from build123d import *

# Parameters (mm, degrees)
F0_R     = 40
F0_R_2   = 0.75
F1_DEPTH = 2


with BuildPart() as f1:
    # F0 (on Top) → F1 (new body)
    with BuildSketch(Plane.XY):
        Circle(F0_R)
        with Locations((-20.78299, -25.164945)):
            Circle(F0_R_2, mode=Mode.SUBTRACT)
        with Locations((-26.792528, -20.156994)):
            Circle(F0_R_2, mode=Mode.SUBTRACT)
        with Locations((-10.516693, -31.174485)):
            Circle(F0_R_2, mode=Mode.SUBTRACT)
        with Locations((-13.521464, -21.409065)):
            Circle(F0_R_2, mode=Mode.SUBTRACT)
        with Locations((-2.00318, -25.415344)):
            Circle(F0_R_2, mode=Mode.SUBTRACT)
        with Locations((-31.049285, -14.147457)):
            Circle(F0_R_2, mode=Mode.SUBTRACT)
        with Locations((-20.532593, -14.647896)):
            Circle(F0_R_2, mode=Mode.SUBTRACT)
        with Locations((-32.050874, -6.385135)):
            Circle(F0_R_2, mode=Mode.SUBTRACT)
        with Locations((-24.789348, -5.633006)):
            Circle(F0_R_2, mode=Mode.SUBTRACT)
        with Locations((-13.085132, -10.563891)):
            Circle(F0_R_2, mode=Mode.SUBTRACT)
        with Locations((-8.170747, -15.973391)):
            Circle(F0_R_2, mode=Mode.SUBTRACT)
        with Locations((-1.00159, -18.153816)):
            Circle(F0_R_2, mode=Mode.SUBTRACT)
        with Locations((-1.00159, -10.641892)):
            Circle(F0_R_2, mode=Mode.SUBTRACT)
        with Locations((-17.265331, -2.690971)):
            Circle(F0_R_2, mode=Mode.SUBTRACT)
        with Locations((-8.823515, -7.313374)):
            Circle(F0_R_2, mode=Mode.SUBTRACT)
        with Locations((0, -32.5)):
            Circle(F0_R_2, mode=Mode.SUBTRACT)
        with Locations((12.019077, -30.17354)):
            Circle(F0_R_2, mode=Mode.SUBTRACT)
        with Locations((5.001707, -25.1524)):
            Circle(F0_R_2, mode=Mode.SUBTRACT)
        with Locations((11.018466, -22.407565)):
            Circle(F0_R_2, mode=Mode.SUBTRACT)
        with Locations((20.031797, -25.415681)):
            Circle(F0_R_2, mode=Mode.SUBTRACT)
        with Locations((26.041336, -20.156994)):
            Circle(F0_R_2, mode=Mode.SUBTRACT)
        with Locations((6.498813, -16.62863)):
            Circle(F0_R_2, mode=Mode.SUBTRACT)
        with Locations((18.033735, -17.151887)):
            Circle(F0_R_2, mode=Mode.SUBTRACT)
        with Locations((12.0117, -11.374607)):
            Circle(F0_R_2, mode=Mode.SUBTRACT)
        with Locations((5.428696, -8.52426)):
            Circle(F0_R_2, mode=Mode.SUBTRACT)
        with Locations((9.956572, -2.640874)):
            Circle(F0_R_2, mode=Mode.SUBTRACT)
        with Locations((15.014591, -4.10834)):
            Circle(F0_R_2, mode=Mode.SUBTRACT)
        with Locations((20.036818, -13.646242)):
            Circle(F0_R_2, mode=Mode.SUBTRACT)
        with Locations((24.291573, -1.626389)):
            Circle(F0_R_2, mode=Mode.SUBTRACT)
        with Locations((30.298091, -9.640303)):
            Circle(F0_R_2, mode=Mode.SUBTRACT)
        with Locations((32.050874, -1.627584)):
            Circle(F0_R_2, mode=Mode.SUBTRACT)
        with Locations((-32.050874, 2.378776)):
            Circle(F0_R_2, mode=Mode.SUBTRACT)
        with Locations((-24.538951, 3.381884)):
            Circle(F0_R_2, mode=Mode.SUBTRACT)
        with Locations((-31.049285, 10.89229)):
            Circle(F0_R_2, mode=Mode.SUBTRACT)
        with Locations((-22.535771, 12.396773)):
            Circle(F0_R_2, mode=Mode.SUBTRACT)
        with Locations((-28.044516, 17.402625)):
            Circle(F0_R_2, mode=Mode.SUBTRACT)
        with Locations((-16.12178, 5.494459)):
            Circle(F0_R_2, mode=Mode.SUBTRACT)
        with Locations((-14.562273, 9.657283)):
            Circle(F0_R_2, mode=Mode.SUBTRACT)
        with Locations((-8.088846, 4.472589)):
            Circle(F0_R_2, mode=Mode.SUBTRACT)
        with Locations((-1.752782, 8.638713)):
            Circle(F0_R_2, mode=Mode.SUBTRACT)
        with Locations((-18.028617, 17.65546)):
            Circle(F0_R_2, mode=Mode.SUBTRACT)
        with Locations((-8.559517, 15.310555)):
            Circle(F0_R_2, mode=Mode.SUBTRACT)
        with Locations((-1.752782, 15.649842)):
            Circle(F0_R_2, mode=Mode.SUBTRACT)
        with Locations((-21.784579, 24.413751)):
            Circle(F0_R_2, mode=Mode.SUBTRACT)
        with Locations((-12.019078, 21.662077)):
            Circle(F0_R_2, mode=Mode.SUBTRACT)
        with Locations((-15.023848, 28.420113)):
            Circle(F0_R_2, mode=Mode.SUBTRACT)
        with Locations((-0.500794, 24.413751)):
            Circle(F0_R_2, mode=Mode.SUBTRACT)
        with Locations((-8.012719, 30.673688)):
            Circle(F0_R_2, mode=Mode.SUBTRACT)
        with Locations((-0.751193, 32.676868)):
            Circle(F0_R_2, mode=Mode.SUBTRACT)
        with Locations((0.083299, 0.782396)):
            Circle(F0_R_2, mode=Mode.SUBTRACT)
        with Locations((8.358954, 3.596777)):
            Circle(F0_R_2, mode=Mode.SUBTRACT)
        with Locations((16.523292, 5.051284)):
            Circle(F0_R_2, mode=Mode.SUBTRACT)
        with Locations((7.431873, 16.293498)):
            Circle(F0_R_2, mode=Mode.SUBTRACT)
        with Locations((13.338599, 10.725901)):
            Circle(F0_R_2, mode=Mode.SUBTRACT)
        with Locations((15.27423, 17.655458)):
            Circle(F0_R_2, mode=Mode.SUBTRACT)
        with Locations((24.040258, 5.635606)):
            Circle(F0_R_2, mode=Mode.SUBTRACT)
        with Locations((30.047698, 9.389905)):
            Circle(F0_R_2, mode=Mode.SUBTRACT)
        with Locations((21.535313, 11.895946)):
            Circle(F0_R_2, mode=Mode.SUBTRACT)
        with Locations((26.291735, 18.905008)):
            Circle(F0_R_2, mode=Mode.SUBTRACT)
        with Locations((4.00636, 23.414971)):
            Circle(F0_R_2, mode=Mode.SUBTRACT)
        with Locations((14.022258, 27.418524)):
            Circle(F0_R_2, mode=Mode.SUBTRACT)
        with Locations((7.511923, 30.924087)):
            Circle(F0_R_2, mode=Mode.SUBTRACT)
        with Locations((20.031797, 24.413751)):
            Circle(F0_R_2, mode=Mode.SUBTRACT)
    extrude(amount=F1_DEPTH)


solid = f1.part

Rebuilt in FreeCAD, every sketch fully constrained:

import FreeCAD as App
import Part
import Sketcher
from FreeCAD import Vector

doc = App.newDocument("Part")
params = doc.addObject("Spreadsheet::Sheet", "Params")
for row, (alias, value) in enumerate([
    ("sketch1_diameter", "80 mm"),
    ("sketch1_diameter2", "1.5 mm"),
    ("pad1_length", "2 mm"),
], start=1):
    params.set(f"A{row}", alias)
    params.set(f"B{row}", "=" + value)
    params.setAlias(f"B{row}", alias)

body = doc.addObject("PartDesign::Body", "Body")

# Sketch on XY plane
sketch1 = body.newObject("Sketcher::SketchObject", "Sketch")
sketch1.AttachmentSupport = (doc.getObject("XY_Plane"), [""])
sketch1.MapMode = "FlatFace"
sketch1.addGeometry(Part.Circle(Vector(0, 0, 0), Vector(0, 0, 1), 40), False)
sketch1.addGeometry(Part.Circle(Vector(-20.8, -25.2, 0), Vector(0, 0, 1), 0.8), False)
sketch1.addGeometry(Part.Circle(Vector(-26.8, -20.2, 0), Vector(0, 0, 1), 0.8), False)
sketch1.addGeometry(Part.Circle(Vector(-10.5, -31.2, 0), Vector(0, 0, 1), 0.8), False)
sketch1.addGeometry(Part.Circle(Vector(-2, -25.4, 0), Vector(0, 0, 1), 0.8), False)
sketch1.addGeometry(Part.Circle(Vector(-13.5, -21.4, 0), Vector(0, 0, 1), 0.8), False)
sketch1.addGeometry(Part.Circle(Vector(-1, -18.2, 0), Vector(0, 0, 1), 0.8), False)
sketch1.addGeometry(Part.Circle(Vector(-31, -14.1, 0), Vector(0, 0, 1), 0.8), False)
sketch1.addGeometry(Part.Circle(Vector(-20.5, -14.6, 0), Vector(0, 0, 1), 0.8), False)
sketch1.addGeometry(Part.Circle(Vector(-32.1, -6.4, 0), Vector(0, 0, 1), 0.8), False)
sketch1.addGeometry(Part.Circle(Vector(-24.8, -5.6, 0), Vector(0, 0, 1), 0.8), False)
sketch1.addGeometry(Part.Circle(Vector(-17.3, -2.7, 0), Vector(0, 0, 1), 0.8), False)
sketch1.addGeometry(Part.Circle(Vector(-13.1, -10.6, 0), Vector(0, 0, 1), 0.8), False)
sketch1.addGeometry(Part.Circle(Vector(-8.2, -16, 0), Vector(0, 0, 1), 0.8), False)
sketch1.addGeometry(Part.Circle(Vector(-1, -10.6, 0), Vector(0, 0, 1), 0.8), False)
sketch1.addGeometry(Part.Circle(Vector(-8.8, -7.3, 0), Vector(0, 0, 1), 0.8), False)
sketch1.addGeometry(Part.Circle(Vector(0, -32.5, 0), Vector(0, 0, 1), 0.8), False)
sketch1.addGeometry(Part.Circle(Vector(5, -25.2, 0), Vector(0, 0, 1), 0.8), False)
sketch1.addGeometry(Part.Circle(Vector(12, -30.2, 0), Vector(0, 0, 1), 0.8), False)
sketch1.addGeometry(Part.Circle(Vector(6.5, -16.6, 0), Vector(0, 0, 1), 0.8), False)
sketch1.addGeometry(Part.Circle(Vector(11, -22.4, 0), Vector(0, 0, 1), 0.8), False)
sketch1.addGeometry(Part.Circle(Vector(20, -25.4, 0), Vector(0, 0, 1), 0.8), False)
sketch1.addGeometry(Part.Circle(Vector(18, -17.2, 0), Vector(0, 0, 1), 0.8), False)
sketch1.addGeometry(Part.Circle(Vector(26, -20.2, 0), Vector(0, 0, 1), 0.8), False)
sketch1.addGeometry(Part.Circle(Vector(5.4, -8.5, 0), Vector(0, 0, 1), 0.8), False)
sketch1.addGeometry(Part.Circle(Vector(12, -11.4, 0), Vector(0, 0, 1), 0.8), False)
sketch1.addGeometry(Part.Circle(Vector(15, -4.1, 0), Vector(0, 0, 1), 0.8), False)
sketch1.addGeometry(Part.Circle(Vector(10, -2.6, 0), Vector(0, 0, 1), 0.8), False)
sketch1.addGeometry(Part.Circle(Vector(20, -13.6, 0), Vector(0, 0, 1), 0.8), False)
sketch1.addGeometry(Part.Circle(Vector(30.3, -9.6, 0), Vector(0, 0, 1), 0.8), False)
sketch1.addGeometry(Part.Circle(Vector(24.3, -1.6, 0), Vector(0, 0, 1), 0.8), False)
sketch1.addGeometry(Part.Circle(Vector(32.1, -1.6, 0), Vector(0, 0, 1), 0.8), False)
sketch1.addGeometry(Part.Circle(Vector(-32.1, 2.4, 0), Vector(0, 0, 1), 0.8), False)
sketch1.addGeometry(Part.Circle(Vector(-24.5, 3.4, 0), Vector(0, 0, 1), 0.8), False)
sketch1.addGeometry(Part.Circle(Vector(-31, 10.9, 0), Vector(0, 0, 1), 0.8), False)
sketch1.addGeometry(Part.Circle(Vector(-22.5, 12.4, 0), Vector(0, 0, 1), 0.8), False)
sketch1.addGeometry(Part.Circle(Vector(-16.1, 5.5, 0), Vector(0, 0, 1), 0.8), False)
sketch1.addGeometry(Part.Circle(Vector(-8.1, 4.5, 0), Vector(0, 0, 1), 0.8), False)
sketch1.addGeometry(Part.Circle(Vector(-14.6, 9.7, 0), Vector(0, 0, 1), 0.8), False)
sketch1.addGeometry(Part.Circle(Vector(-8.6, 15.3, 0), Vector(0, 0, 1), 0.8), False)
sketch1.addGeometry(Part.Circle(Vector(-1.8, 8.6, 0), Vector(0, 0, 1), 0.8), False)
sketch1.addGeometry(Part.Circle(Vector(-1.8, 15.6, 0), Vector(0, 0, 1), 0.8), False)
sketch1.addGeometry(Part.Circle(Vector(-28, 17.4, 0), Vector(0, 0, 1), 0.8), False)
sketch1.addGeometry(Part.Circle(Vector(-18, 17.7, 0), Vector(0, 0, 1), 0.8), False)
sketch1.addGeometry(Part.Circle(Vector(-21.8, 24.4, 0), Vector(0, 0, 1), 0.8), False)
sketch1.addGeometry(Part.Circle(Vector(-12, 21.7, 0), Vector(0, 0, 1), 0.8), False)
sketch1.addGeometry(Part.Circle(Vector(-0.5, 24.4, 0), Vector(0, 0, 1), 0.8), False)
sketch1.addGeometry(Part.Circle(Vector(-15, 28.4, 0), Vector(0, 0, 1), 0.8), False)
sketch1.addGeometry(Part.Circle(Vector(-8, 30.7, 0), Vector(0, 0, 1), 0.8), False)
sketch1.addGeometry(Part.Circle(Vector(-0.8, 32.7, 0), Vector(0, 0, 1), 0.8), False)
sketch1.addGeometry(Part.Circle(Vector(0.1, 0.8, 0), Vector(0, 0, 1), 0.8), False)
sketch1.addGeometry(Part.Circle(Vector(8.4, 3.6, 0), Vector(0, 0, 1), 0.8), False)
sketch1.addGeometry(Part.Circle(Vector(7.4, 16.3, 0), Vector(0, 0, 1), 0.8), False)
sketch1.addGeometry(Part.Circle(Vector(13.3, 10.7, 0), Vector(0, 0, 1), 0.8), False)
sketch1.addGeometry(Part.Circle(Vector(16.5, 5.1, 0), Vector(0, 0, 1), 0.8), False)
sketch1.addGeometry(Part.Circle(Vector(24, 5.6, 0), Vector(0, 0, 1), 0.8), False)
sketch1.addGeometry(Part.Circle(Vector(21.5, 11.9, 0), Vector(0, 0, 1), 0.8), False)
sketch1.addGeometry(Part.Circle(Vector(30, 9.4, 0), Vector(0, 0, 1), 0.8), False)
sketch1.addGeometry(Part.Circle(Vector(4, 23.4, 0), Vector(0, 0, 1), 0.8), False)
sketch1.addGeometry(Part.Circle(Vector(15.3, 17.7, 0), Vector(0, 0, 1), 0.8), False)
sketch1.addGeometry(Part.Circle(Vector(7.5, 30.9, 0), Vector(0, 0, 1), 0.8), False)
sketch1.addGeometry(Part.Circle(Vector(14, 27.4, 0), Vector(0, 0, 1), 0.8), False)
sketch1.addGeometry(Part.Circle(Vector(20, 24.4, 0), Vector(0, 0, 1), 0.8), False)
sketch1.addGeometry(Part.Circle(Vector(26.3, 18.9, 0), Vector(0, 0, 1), 0.8), False)
sketch1.addConstraint(Sketcher.Constraint("Coincident", 0, 3, -1, 1))
sketch1.addConstraint(Sketcher.Constraint("Equal", 1, 2))
sketch1.addConstraint(Sketcher.Constraint("Equal", 2, 3))
sketch1.addConstraint(Sketcher.Constraint("Equal", 3, 4))
sketch1.addConstraint(Sketcher.Constraint("Equal", 4, 5))
sketch1.addConstraint(Sketcher.Constraint("Equal", 5, 6))
sketch1.addConstraint(Sketcher.Constraint("Equal", 6, 7))
sketch1.addConstraint(Sketcher.Constraint("Equal", 7, 8))
sketch1.addConstraint(Sketcher.Constraint("Equal", 8, 9))
sketch1.addConstraint(Sketcher.Constraint("Equal", 9, 10))
sketch1.addConstraint(Sketcher.Constraint("Equal", 10, 11))
sketch1.addConstraint(Sketcher.Constraint("Equal", 11, 12))
sketch1.addConstraint(Sketcher.Constraint("Equal", 12, 13))
sketch1.addConstraint(Sketcher.Constraint("Equal", 13, 14))
sketch1.addConstraint(Sketcher.Constraint("Equal", 14, 15))
sketch1.addConstraint(Sketcher.Constraint("Equal", 15, 16))
sketch1.addConstraint(Sketcher.Constraint("Equal", 16, 17))
sketch1.addConstraint(Sketcher.Constraint("Equal", 17, 18))
sketch1.addConstraint(Sketcher.Constraint("Equal", 18, 19))
sketch1.addConstraint(Sketcher.Constraint("Equal", 19, 20))
sketch1.addConstraint(Sketcher.Constraint("Equal", 20, 21))
sketch1.addConstraint(Sketcher.Constraint("Equal", 21, 22))
sketch1.addConstraint(Sketcher.Constraint("Equal", 22, 23))
sketch1.addConstraint(Sketcher.Constraint("Equal", 23, 24))
sketch1.addConstraint(Sketcher.Constraint("Equal", 24, 25))
sketch1.addConstraint(Sketcher.Constraint("Equal", 25, 26))
sketch1.addConstraint(Sketcher.Constraint("Equal", 26, 27))
sketch1.addConstraint(Sketcher.Constraint("Equal", 27, 28))
sketch1.addConstraint(Sketcher.Constraint("Equal", 28, 29))
sketch1.addConstraint(Sketcher.Constraint("Equal", 29, 30))
sketch1.addConstraint(Sketcher.Constraint("Equal", 30, 31))
sketch1.addConstraint(Sketcher.Constraint("Equal", 31, 32))
sketch1.addConstraint(Sketcher.Constraint("Equal", 32, 33))
sketch1.addConstraint(Sketcher.Constraint("Equal", 33, 34))
sketch1.addConstraint(Sketcher.Constraint("Equal", 34, 35))
sketch1.addConstraint(Sketcher.Constraint("Equal", 35, 36))
sketch1.addConstraint(Sketcher.Constraint("Equal", 36, 37))
sketch1.addConstraint(Sketcher.Constraint("Equal", 37, 38))
sketch1.addConstraint(Sketcher.Constraint("Equal", 38, 39))
sketch1.addConstraint(Sketcher.Constraint("Equal", 39, 40))
sketch1.addConstraint(Sketcher.Constraint("Equal", 40, 41))
sketch1.addConstraint(Sketcher.Constraint("Equal", 41, 42))
sketch1.addConstraint(Sketcher.Constraint("Equal", 42, 43))
sketch1.addConstraint(Sketcher.Constraint("Equal", 43, 44))
sketch1.addConstraint(Sketcher.Constraint("Equal", 44, 45))
sketch1.addConstraint(Sketcher.Constraint("Equal", 45, 46))
sketch1.addConstraint(Sketcher.Constraint("Equal", 46, 47))
sketch1.addConstraint(Sketcher.Constraint("Equal", 47, 48))
sketch1.addConstraint(Sketcher.Constraint("Equal", 48, 49))
sketch1.addConstraint(Sketcher.Constraint("Equal", 49, 50))
sketch1.addConstraint(Sketcher.Constraint("Equal", 50, 51))
sketch1.addConstraint(Sketcher.Constraint("Equal", 51, 52))
sketch1.addConstraint(Sketcher.Constraint("Equal", 52, 53))
sketch1.addConstraint(Sketcher.Constraint("Equal", 53, 54))
sketch1.addConstraint(Sketcher.Constraint("Equal", 54, 55))
sketch1.addConstraint(Sketcher.Constraint("Equal", 55, 56))
sketch1.addConstraint(Sketcher.Constraint("Equal", 56, 57))
sketch1.addConstraint(Sketcher.Constraint("Equal", 57, 58))
sketch1.addConstraint(Sketcher.Constraint("Equal", 58, 59))
sketch1.addConstraint(Sketcher.Constraint("Equal", 59, 60))
sketch1.addConstraint(Sketcher.Constraint("Equal", 60, 61))
sketch1.addConstraint(Sketcher.Constraint("Equal", 61, 62))
sketch1.addConstraint(Sketcher.Constraint("Equal", 62, 63))
sketch1.addConstraint(Sketcher.Constraint("PointOnObject", 16, 3, -2))
sketch1.addConstraint(Sketcher.Constraint("Horizontal", 2, 3, 23, 3))
sketch1.addConstraint(Sketcher.Constraint("Horizontal", 44, 3, 46, 3))
sketch1.addConstraint(Sketcher.Constraint("Horizontal", 46, 3, 62, 3))
sketch1.addConstraint(Sketcher.Constraint("Vertical", 6, 3, 14, 3))
sketch1.addConstraint(Sketcher.Constraint("Vertical", 9, 3, 32, 3))
sketch1.addConstraint(Sketcher.Constraint("Vertical", 7, 3, 34, 3))
sketch1.addConstraint(Sketcher.Constraint("Vertical", 40, 3, 41, 3))
sketch1.addConstraint(Sketcher.Constraint("Vertical", 21, 3, 62, 3))
sketch1.addConstraint(Sketcher.Constraint("Diameter", 0, 80.0))
sketch1.addConstraint(Sketcher.Constraint("Diameter", 1, 1.5))
sketch1.addConstraint(Sketcher.Constraint("DistanceY", 16, 3, -1, 1, 32.5))
sketch1.addConstraint(Sketcher.Constraint("DistanceY", 17, 3, -1, 1, 25.1524))
sketch1.addConstraint(Sketcher.Constraint("DistanceX", -1, 1, 25, 3, 12.0117))
sketch1.addConstraint(Sketcher.Constraint("DistanceX", -1, 1, 50, 3, 0.083299))
sketch1.addConstraint(Sketcher.Constraint("DistanceX", -1, 1, 53, 3, 13.338599))
sketch1.addConstraint(Sketcher.Constraint("DistanceY", -1, 1, 53, 3, 10.725901))
sketch1.addConstraint(Sketcher.Constraint("DistanceX", -1, 1, 57, 3, 30.047698))
sketch1.addConstraint(Sketcher.Constraint("DistanceX", 1, 3, -1, 1, 20.78299))
sketch1.addConstraint(Sketcher.Constraint("DistanceX", 2, 3, -1, 1, 26.792528))
sketch1.addConstraint(Sketcher.Constraint("DistanceX", 4, 3, -1, 1, 2.00318))
sketch1.addConstraint(Sketcher.Constraint("DistanceX", 6, 3, -1, 1, 1.00159))
sketch1.addConstraint(Sketcher.Constraint("DistanceX", 10, 3, -1, 1, 24.789348))
sketch1.addConstraint(Sketcher.Constraint("DistanceX", 11, 3, -1, 1, 17.265331))
sketch1.addConstraint(Sketcher.Constraint("DistanceY", 11, 3, -1, 1, 2.690971))
sketch1.addConstraint(Sketcher.Constraint("DistanceY", 12, 3, -1, 1, 10.563891))
sketch1.addConstraint(Sketcher.Constraint("DistanceY", 13, 3, -1, 1, 15.973391))
sketch1.addConstraint(Sketcher.Constraint("DistanceY", 18, 3, -1, 1, 30.17354))
sketch1.addConstraint(Sketcher.Constraint("DistanceY", 19, 3, -1, 1, 16.62863))
sketch1.addConstraint(Sketcher.Constraint("DistanceY", 21, 3, -1, 1, 25.415681))
sketch1.addConstraint(Sketcher.Constraint("DistanceY", 24, 3, -1, 1, 8.52426))
sketch1.addConstraint(Sketcher.Constraint("DistanceX", -1, 1, 26, 3, 15.014591))
sketch1.addConstraint(Sketcher.Constraint("DistanceY", 26, 3, -1, 1, 4.10834))
sketch1.addConstraint(Sketcher.Constraint("DistanceX", -1, 1, 28, 3, 20.036818))
sketch1.addConstraint(Sketcher.Constraint("DistanceX", -1, 1, 29, 3, 30.298091))
sketch1.addConstraint(Sketcher.Constraint("DistanceY", 30, 3, -1, 1, 1.626389))
sketch1.addConstraint(Sketcher.Constraint("DistanceX", 33, 3, -1, 1, 24.538951))
sketch1.addConstraint(Sketcher.Constraint("DistanceY", -1, 1, 34, 3, 10.89229))
sketch1.addConstraint(Sketcher.Constraint("DistanceX", 35, 3, -1, 1, 22.535771))
sketch1.addConstraint(Sketcher.Constraint("DistanceX", 36, 3, -1, 1, 16.12178))
sketch1.addConstraint(Sketcher.Constraint("DistanceY", -1, 1, 36, 3, 5.494459))
sketch1.addConstraint(Sketcher.Constraint("DistanceY", -1, 1, 37, 3, 4.472589))
sketch1.addConstraint(Sketcher.Constraint("DistanceY", -1, 1, 43, 3, 17.65546))
sketch1.addConstraint(Sketcher.Constraint("DistanceX", 44, 3, -1, 1, 21.784579))
sketch1.addConstraint(Sketcher.Constraint("DistanceY", -1, 1, 44, 3, 24.413751))
sketch1.addConstraint(Sketcher.Constraint("DistanceX", 48, 3, -1, 1, 8.012719))
sketch1.addConstraint(Sketcher.Constraint("DistanceX", -1, 1, 55, 3, 24.040258))
sketch1.addConstraint(Sketcher.Constraint("DistanceX", -1, 1, 58, 3, 4.00636))
sketch1.addConstraint(Sketcher.Constraint("DistanceY", -1, 1, 58, 3, 23.414971))
sketch1.addConstraint(Sketcher.Constraint("DistanceX", -1, 1, 59, 3, 15.27423))
sketch1.addConstraint(Sketcher.Constraint("DistanceX", -1, 1, 61, 3, 14.022258))
sketch1.addConstraint(Sketcher.Constraint("DistanceY", 1, 3, -1, 1, 25.164945))
sketch1.addConstraint(Sketcher.Constraint("DistanceY", 2, 3, -1, 1, 20.156994))
sketch1.addConstraint(Sketcher.Constraint("DistanceX", 3, 3, -1, 1, 10.516693))
sketch1.addConstraint(Sketcher.Constraint("DistanceY", 3, 3, -1, 1, 31.174485))
sketch1.addConstraint(Sketcher.Constraint("DistanceY", 4, 3, -1, 1, 25.415344))
sketch1.addConstraint(Sketcher.Constraint("DistanceX", 5, 3, -1, 1, 13.521464))
sketch1.addConstraint(Sketcher.Constraint("DistanceY", 5, 3, -1, 1, 21.409065))
sketch1.addConstraint(Sketcher.Constraint("DistanceY", 6, 3, -1, 1, 18.153816))
sketch1.addConstraint(Sketcher.Constraint("DistanceX", 7, 3, -1, 1, 31.049285))
sketch1.addConstraint(Sketcher.Constraint("DistanceY", 7, 3, -1, 1, 14.147457))
sketch1.addConstraint(Sketcher.Constraint("DistanceX", 8, 3, -1, 1, 20.532593))
sketch1.addConstraint(Sketcher.Constraint("DistanceY", 8, 3, -1, 1, 14.647896))
sketch1.addConstraint(Sketcher.Constraint("DistanceX", 9, 3, -1, 1, 32.050874))
sketch1.addConstraint(Sketcher.Constraint("DistanceY", 9, 3, -1, 1, 6.385135))
sketch1.addConstraint(Sketcher.Constraint("DistanceY", 10, 3, -1, 1, 5.633006))
sketch1.addConstraint(Sketcher.Constraint("DistanceX", 12, 3, -1, 1, 13.085132))
sketch1.addConstraint(Sketcher.Constraint("DistanceX", 13, 3, -1, 1, 8.170747))
sketch1.addConstraint(Sketcher.Constraint("DistanceY", 14, 3, -1, 1, 10.641892))
sketch1.addConstraint(Sketcher.Constraint("DistanceX", 15, 3, -1, 1, 8.823515))
sketch1.addConstraint(Sketcher.Constraint("DistanceY", 15, 3, -1, 1, 7.313374))
sketch1.addConstraint(Sketcher.Constraint("DistanceX", -1, 1, 17, 3, 5.001707))
sketch1.addConstraint(Sketcher.Constraint("DistanceX", -1, 1, 18, 3, 12.019077))
sketch1.addConstraint(Sketcher.Constraint("DistanceX", -1, 1, 19, 3, 6.498813))
sketch1.addConstraint(Sketcher.Constraint("DistanceX", -1, 1, 20, 3, 11.018466))
sketch1.addConstraint(Sketcher.Constraint("DistanceY", 20, 3, -1, 1, 22.407565))
sketch1.addConstraint(Sketcher.Constraint("DistanceX", -1, 1, 21, 3, 20.031797))
sketch1.addConstraint(Sketcher.Constraint("DistanceX", -1, 1, 22, 3, 18.033735))
sketch1.addConstraint(Sketcher.Constraint("DistanceY", 22, 3, -1, 1, 17.151887))
sketch1.addConstraint(Sketcher.Constraint("DistanceX", -1, 1, 23, 3, 26.041336))
sketch1.addConstraint(Sketcher.Constraint("DistanceX", -1, 1, 24, 3, 5.428696))
sketch1.addConstraint(Sketcher.Constraint("DistanceY", 25, 3, -1, 1, 11.374607))
sketch1.addConstraint(Sketcher.Constraint("DistanceX", -1, 1, 27, 3, 9.956572))
sketch1.addConstraint(Sketcher.Constraint("DistanceY", 27, 3, -1, 1, 2.640874))
sketch1.addConstraint(Sketcher.Constraint("DistanceY", 28, 3, -1, 1, 13.646242))
sketch1.addConstraint(Sketcher.Constraint("DistanceY", 29, 3, -1, 1, 9.640303))
sketch1.addConstraint(Sketcher.Constraint("DistanceX", -1, 1, 30, 3, 24.291573))
sketch1.addConstraint(Sketcher.Constraint("DistanceX", -1, 1, 31, 3, 32.050874))
sketch1.addConstraint(Sketcher.Constraint("DistanceY", 31, 3, -1, 1, 1.627584))
sketch1.addConstraint(Sketcher.Constraint("DistanceY", -1, 1, 32, 3, 2.378776))
sketch1.addConstraint(Sketcher.Constraint("DistanceY", -1, 1, 33, 3, 3.381884))
sketch1.addConstraint(Sketcher.Constraint("DistanceY", -1, 1, 35, 3, 12.396773))
sketch1.addConstraint(Sketcher.Constraint("DistanceX", 37, 3, -1, 1, 8.088846))
sketch1.addConstraint(Sketcher.Constraint("DistanceX", 38, 3, -1, 1, 14.562273))
sketch1.addConstraint(Sketcher.Constraint("DistanceY", -1, 1, 38, 3, 9.657283))
sketch1.addConstraint(Sketcher.Constraint("DistanceX", 39, 3, -1, 1, 8.559517))
sketch1.addConstraint(Sketcher.Constraint("DistanceY", -1, 1, 39, 3, 15.310555))
sketch1.addConstraint(Sketcher.Constraint("DistanceX", 40, 3, -1, 1, 1.752782))
sketch1.addConstraint(Sketcher.Constraint("DistanceY", -1, 1, 40, 3, 8.638713))
sketch1.addConstraint(Sketcher.Constraint("DistanceY", -1, 1, 41, 3, 15.649842))
sketch1.addConstraint(Sketcher.Constraint("DistanceX", 42, 3, -1, 1, 28.044516))
sketch1.addConstraint(Sketcher.Constraint("DistanceY", -1, 1, 42, 3, 17.402625))
sketch1.addConstraint(Sketcher.Constraint("DistanceX", 43, 3, -1, 1, 18.028617))
sketch1.addConstraint(Sketcher.Constraint("DistanceX", 45, 3, -1, 1, 12.019078))
sketch1.addConstraint(Sketcher.Constraint("DistanceY", -1, 1, 45, 3, 21.662077))
sketch1.addConstraint(Sketcher.Constraint("DistanceX", 46, 3, -1, 1, 0.500794))
sketch1.addConstraint(Sketcher.Constraint("DistanceX", 47, 3, -1, 1, 15.023848))
sketch1.addConstraint(Sketcher.Constraint("DistanceY", -1, 1, 47, 3, 28.420113))
sketch1.addConstraint(Sketcher.Constraint("DistanceY", -1, 1, 48, 3, 30.673688))
sketch1.addConstraint(Sketcher.Constraint("DistanceX", 49, 3, -1, 1, 0.751193))
sketch1.addConstraint(Sketcher.Constraint("DistanceY", -1, 1, 49, 3, 32.676868))
sketch1.addConstraint(Sketcher.Constraint("DistanceY", -1, 1, 50, 3, 0.782396))
sketch1.addConstraint(Sketcher.Constraint("DistanceX", -1, 1, 51, 3, 8.358954))
sketch1.addConstraint(Sketcher.Constraint("DistanceY", -1, 1, 51, 3, 3.596777))
sketch1.addConstraint(Sketcher.Constraint("DistanceX", -1, 1, 52, 3, 7.431873))
sketch1.addConstraint(Sketcher.Constraint("DistanceY", -1, 1, 52, 3, 16.293498))
sketch1.addConstraint(Sketcher.Constraint("DistanceX", -1, 1, 54, 3, 16.523292))
sketch1.addConstraint(Sketcher.Constraint("DistanceY", -1, 1, 54, 3, 5.051284))
sketch1.addConstraint(Sketcher.Constraint("DistanceY", -1, 1, 55, 3, 5.635606))
sketch1.addConstraint(Sketcher.Constraint("DistanceX", -1, 1, 56, 3, 21.535313))
sketch1.addConstraint(Sketcher.Constraint("DistanceY", -1, 1, 56, 3, 11.895946))
sketch1.addConstraint(Sketcher.Constraint("DistanceY", -1, 1, 57, 3, 9.389905))
sketch1.addConstraint(Sketcher.Constraint("DistanceY", -1, 1, 59, 3, 17.655458))
sketch1.addConstraint(Sketcher.Constraint("DistanceX", -1, 1, 60, 3, 7.511923))
sketch1.addConstraint(Sketcher.Constraint("DistanceY", -1, 1, 60, 3, 30.924087))
sketch1.addConstraint(Sketcher.Constraint("DistanceY", -1, 1, 61, 3, 27.418524))
sketch1.addConstraint(Sketcher.Constraint("DistanceX", -1, 1, 63, 3, 26.291735))
sketch1.addConstraint(Sketcher.Constraint("DistanceY", -1, 1, 63, 3, 18.905008))
sketch1.setExpression("Constraints[72]", "Params.sketch1_diameter")
sketch1.setExpression("Constraints[73]", "Params.sketch1_diameter2")
pad1 = body.newObject("PartDesign::Pad", "Pad")
pad1.Profile = sketch1
pad1.setExpression("Length", "Params.pad1_length")

doc.recompute()
